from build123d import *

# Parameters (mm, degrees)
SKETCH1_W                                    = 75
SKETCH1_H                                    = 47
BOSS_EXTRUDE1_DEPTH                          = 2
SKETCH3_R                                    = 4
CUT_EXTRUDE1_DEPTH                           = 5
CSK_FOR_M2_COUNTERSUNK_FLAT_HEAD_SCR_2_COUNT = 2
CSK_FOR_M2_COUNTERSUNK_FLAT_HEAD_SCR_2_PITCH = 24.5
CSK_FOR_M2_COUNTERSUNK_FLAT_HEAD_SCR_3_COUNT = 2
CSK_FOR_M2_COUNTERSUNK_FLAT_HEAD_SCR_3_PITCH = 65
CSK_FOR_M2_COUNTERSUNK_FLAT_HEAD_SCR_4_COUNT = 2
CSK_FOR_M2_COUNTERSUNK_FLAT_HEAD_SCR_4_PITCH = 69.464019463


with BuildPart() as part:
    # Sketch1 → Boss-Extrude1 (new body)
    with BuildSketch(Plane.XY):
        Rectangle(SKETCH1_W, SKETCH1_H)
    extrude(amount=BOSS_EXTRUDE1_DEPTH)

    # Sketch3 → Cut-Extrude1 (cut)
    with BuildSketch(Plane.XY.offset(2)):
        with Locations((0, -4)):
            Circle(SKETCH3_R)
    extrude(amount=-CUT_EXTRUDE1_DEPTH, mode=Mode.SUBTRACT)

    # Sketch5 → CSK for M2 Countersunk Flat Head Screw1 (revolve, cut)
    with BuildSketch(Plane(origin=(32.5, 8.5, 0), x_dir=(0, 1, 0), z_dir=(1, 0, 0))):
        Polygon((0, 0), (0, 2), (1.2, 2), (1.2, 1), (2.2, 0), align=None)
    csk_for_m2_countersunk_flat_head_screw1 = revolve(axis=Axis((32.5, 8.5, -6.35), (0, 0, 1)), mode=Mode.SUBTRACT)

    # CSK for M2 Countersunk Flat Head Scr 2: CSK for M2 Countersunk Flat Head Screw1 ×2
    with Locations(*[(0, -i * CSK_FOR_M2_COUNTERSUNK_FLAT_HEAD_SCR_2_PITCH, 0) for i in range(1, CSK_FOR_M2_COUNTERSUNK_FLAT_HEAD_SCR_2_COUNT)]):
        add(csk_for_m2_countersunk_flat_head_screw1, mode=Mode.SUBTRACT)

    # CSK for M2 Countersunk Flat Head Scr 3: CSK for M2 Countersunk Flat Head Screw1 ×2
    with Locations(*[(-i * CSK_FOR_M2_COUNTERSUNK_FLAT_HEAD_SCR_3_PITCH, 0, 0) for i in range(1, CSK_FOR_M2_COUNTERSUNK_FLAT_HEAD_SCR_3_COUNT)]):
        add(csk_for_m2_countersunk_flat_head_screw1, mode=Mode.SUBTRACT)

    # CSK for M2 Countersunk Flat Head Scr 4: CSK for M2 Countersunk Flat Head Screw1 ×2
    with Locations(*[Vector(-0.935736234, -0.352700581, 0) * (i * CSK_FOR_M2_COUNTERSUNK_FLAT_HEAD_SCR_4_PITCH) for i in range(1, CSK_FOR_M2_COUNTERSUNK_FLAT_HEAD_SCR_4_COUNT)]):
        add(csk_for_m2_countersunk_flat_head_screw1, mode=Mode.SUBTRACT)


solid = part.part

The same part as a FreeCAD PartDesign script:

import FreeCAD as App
import Part
import Sketcher
Q = App.Units.Quantity

doc = App.newDocument("Part")
body = doc.addObject("PartDesign::Body", "Body")

# Sketch on XY plane
sketch1 = body.newObject("Sketcher::SketchObject", "Sketch")
sketch1.AttachmentSupport = (doc.getObject("XY_Plane"), [""])
sketch1.MapMode = "FlatFace"
sketch1.addGeometry(Part.LineSegment(App.Vector(-38, 24, 0), App.Vector(-38, -24, 0)), False)
sketch1.addGeometry(Part.LineSegment(App.Vector(-38, -24, 0), App.Vector(38, -24, 0)), False)
sketch1.addGeometry(Part.LineSegment(App.Vector(38, -24, 0), App.Vector(38, 24, 0)), False)
sketch1.addGeometry(Part.LineSegment(App.Vector(38, 24, 0), App.Vector(-38, 24, 0)), False)
sketch1.addConstraint(Sketcher.Constraint("Coincident", 0, 2, 1, 1))
sketch1.addConstraint(Sketcher.Constraint("Coincident", 1, 2, 2, 1))
sketch1.addConstraint(Sketcher.Constraint("Coincident", 2, 2, 3, 1))
sketch1.addConstraint(Sketcher.Constraint("Coincident", 3, 2, 0, 1))
sketch1.addConstraint(Sketcher.Constraint("Vertical", 0))
sketch1.addConstraint(Sketcher.Constraint("Horizontal", 1))
sketch1.addConstraint(Sketcher.Constraint("Vertical", 2))
sketch1.addConstraint(Sketcher.Constraint("Horizontal", 3))
sketch1.addConstraint(Sketcher.Constraint("Symmetric", 0, 2, 2, 2, -1, 1))
sketch1.addConstraint(Sketcher.Constraint("DistanceX", 1, 1, 1, 2, Q("75 mm")))
sketch1.addConstraint(Sketcher.Constraint("DistanceY", 0, 2, 0, 1, Q("47 mm")))
pad1 = body.newObject("PartDesign::Pad", "Pad")
pad1.Profile = sketch1
pad1.Length = 2

# Sketch on XY plane
sketch2 = body.newObject("Sketcher::SketchObject", "Sketch001")
sketch2.AttachmentSupport = (doc.getObject("XY_Plane"), [""])
sketch2.MapMode = "FlatFace"
sketch2.AttachmentOffset = App.Placement(App.Vector(0, 0, 2), App.Rotation())
sketch2.addGeometry(Part.Circle(App.Vector(0, -4, 0), App.Vector(0, 0, 1), 4), False)
sketch2.addConstraint(Sketcher.Constraint("PointOnObject", 0, 3, -2))
sketch2.addConstraint(Sketcher.Constraint("Diameter", 0, Q("8 mm")))
sketch2.addConstraint(Sketcher.Constraint("DistanceY", 0, 3, -1, 1, Q("4 mm")))
pocket1 = body.newObject("PartDesign::Pocket", "Pocket")
pocket1.Profile = sketch2
pocket1.Length = 5

# Sketch on YZ plane
sketch3 = body.newObject("Sketcher::SketchObject", "Sketch002")
sketch3.AttachmentSupport = (doc.getObject("YZ_Plane"), [""])
sketch3.MapMode = "FlatFace"
sketch3.AttachmentOffset = App.Placement(App.Vector(0, 0, 32.5), App.Rotation())
sketch3.addGeometry(Part.LineSegment(App.Vector(8.5, 2, 0), App.Vector(8.5, 0, 0)), False)
sketch3.addGeometry(Part.LineSegment(App.Vector(8.5, 0, 0), App.Vector(10.7, 0, 0)), False)
sketch3.addGeometry(Part.LineSegment(App.Vector(10.7, 0, 0), App.Vector(9.7, 1, 0)), False)
sketch3.addGeometry(Part.LineSegment(App.Vector(9.7, 1, 0), App.Vector(9.7, 2, 0)), False)
sketch3.addGeometry(Part.LineSegment(App.Vector(9.7, 2, 0), App.Vector(8.5, 2, 0)), False)
sketch3.addGeometry(Part.LineSegment(App.Vector(8.5, 0, 0), App.Vector(8.5, 2, 0)), True)  # axis
sketch3.addConstraint(Sketcher.Constraint("Coincident", 0, 2, 1, 1))
sketch3.addConstraint(Sketcher.Constraint("Coincident", 1, 2, 2, 1))
sketch3.addConstraint(Sketcher.Constraint("Coincident", 2, 2, 3, 1))
sketch3.addConstraint(Sketcher.Constraint("Coincident", 3, 2, 4, 1))
sketch3.addConstraint(Sketcher.Constraint("Coincident", 4, 2, 0, 1))
sketch3.addConstraint(Sketcher.Constraint("Vertical", 0))
sketch3.addConstraint(Sketcher.Constraint("Horizontal", 1))
sketch3.addConstraint(Sketcher.Constraint("Vertical", 3))
sketch3.addConstraint(Sketcher.Constraint("Horizontal", 4))
sketch3.addConstraint(Sketcher.Constraint("Vertical", 5))
sketch3.addConstraint(Sketcher.Constraint("Coincident", 5, 1, 0, 2))
sketch3.addConstraint(Sketcher.Constraint("PointOnObject", 0, 2, -1))
sketch3.addConstraint(Sketcher.Constraint("Horizontal", 3, 2, 5, 2))
sketch3.addConstraint(Sketcher.Constraint("DistanceY", 0, 2, 0, 1, Q("2 mm")))
sketch3.addConstraint(Sketcher.Constraint("DistanceY", 3, 1, 3, 2, Q("1 mm")))
sketch3.addConstraint(Sketcher.Constraint("Angle", 2, Q("135 deg")))
sketch3.addConstraint(Sketcher.Constraint("DistanceX", 1, 1, 1, 2, Q("2.2 mm")))
sketch3.addConstraint(Sketcher.Constraint("DistanceX", -1, 1, 0, 2, Q("8.5 mm")))
groove = body.newObject("PartDesign::Groove", "Groove")
groove.Profile = sketch3
groove.ReferenceAxis = (sketch3, ["Axis0"])
groove.Angle = 360
doc.recompute()

linearpattern = body.newObject("PartDesign::LinearPattern", "LinearPattern")
linearpattern.Originals = [groove]
linearpattern.Direction = (doc.getObject("Y_Axis"), [""])
linearpattern.Mode = "offset"
linearpattern.Offset = 24.5
linearpattern.Occurrences = 2
linearpattern.Reversed = True
body.Tip = linearpattern
doc.recompute()

linearpattern2 = body.newObject("PartDesign::LinearPattern", "LinearPattern001")
linearpattern2.Originals = [groove]
linearpattern2.Direction = (doc.getObject("X_Axis"), [""])
linearpattern2.Mode = "offset"
linearpattern2.Offset = 65
linearpattern2.Occurrences = 2
linearpattern2.Reversed = True
body.Tip = linearpattern2
doc.recompute()

datumline = body.newObject("PartDesign::Line", "DatumLine")
datumline.Placement = App.Placement(App.Vector(0, 0, 0), App.Rotation(App.Vector(0, 0, 1), App.Vector(-0.935736234, -0.352700581, 0)))
linearpattern3 = body.newObject("PartDesign::LinearPattern", "LinearPattern002")
linearpattern3.Originals = [groove]
linearpattern3.Direction = (datumline, [""])
linearpattern3.Mode = "offset"
linearpattern3.Offset = 69.464019
linearpattern3.Occurrences = 2
body.Tip = linearpattern3

doc.recompute()
